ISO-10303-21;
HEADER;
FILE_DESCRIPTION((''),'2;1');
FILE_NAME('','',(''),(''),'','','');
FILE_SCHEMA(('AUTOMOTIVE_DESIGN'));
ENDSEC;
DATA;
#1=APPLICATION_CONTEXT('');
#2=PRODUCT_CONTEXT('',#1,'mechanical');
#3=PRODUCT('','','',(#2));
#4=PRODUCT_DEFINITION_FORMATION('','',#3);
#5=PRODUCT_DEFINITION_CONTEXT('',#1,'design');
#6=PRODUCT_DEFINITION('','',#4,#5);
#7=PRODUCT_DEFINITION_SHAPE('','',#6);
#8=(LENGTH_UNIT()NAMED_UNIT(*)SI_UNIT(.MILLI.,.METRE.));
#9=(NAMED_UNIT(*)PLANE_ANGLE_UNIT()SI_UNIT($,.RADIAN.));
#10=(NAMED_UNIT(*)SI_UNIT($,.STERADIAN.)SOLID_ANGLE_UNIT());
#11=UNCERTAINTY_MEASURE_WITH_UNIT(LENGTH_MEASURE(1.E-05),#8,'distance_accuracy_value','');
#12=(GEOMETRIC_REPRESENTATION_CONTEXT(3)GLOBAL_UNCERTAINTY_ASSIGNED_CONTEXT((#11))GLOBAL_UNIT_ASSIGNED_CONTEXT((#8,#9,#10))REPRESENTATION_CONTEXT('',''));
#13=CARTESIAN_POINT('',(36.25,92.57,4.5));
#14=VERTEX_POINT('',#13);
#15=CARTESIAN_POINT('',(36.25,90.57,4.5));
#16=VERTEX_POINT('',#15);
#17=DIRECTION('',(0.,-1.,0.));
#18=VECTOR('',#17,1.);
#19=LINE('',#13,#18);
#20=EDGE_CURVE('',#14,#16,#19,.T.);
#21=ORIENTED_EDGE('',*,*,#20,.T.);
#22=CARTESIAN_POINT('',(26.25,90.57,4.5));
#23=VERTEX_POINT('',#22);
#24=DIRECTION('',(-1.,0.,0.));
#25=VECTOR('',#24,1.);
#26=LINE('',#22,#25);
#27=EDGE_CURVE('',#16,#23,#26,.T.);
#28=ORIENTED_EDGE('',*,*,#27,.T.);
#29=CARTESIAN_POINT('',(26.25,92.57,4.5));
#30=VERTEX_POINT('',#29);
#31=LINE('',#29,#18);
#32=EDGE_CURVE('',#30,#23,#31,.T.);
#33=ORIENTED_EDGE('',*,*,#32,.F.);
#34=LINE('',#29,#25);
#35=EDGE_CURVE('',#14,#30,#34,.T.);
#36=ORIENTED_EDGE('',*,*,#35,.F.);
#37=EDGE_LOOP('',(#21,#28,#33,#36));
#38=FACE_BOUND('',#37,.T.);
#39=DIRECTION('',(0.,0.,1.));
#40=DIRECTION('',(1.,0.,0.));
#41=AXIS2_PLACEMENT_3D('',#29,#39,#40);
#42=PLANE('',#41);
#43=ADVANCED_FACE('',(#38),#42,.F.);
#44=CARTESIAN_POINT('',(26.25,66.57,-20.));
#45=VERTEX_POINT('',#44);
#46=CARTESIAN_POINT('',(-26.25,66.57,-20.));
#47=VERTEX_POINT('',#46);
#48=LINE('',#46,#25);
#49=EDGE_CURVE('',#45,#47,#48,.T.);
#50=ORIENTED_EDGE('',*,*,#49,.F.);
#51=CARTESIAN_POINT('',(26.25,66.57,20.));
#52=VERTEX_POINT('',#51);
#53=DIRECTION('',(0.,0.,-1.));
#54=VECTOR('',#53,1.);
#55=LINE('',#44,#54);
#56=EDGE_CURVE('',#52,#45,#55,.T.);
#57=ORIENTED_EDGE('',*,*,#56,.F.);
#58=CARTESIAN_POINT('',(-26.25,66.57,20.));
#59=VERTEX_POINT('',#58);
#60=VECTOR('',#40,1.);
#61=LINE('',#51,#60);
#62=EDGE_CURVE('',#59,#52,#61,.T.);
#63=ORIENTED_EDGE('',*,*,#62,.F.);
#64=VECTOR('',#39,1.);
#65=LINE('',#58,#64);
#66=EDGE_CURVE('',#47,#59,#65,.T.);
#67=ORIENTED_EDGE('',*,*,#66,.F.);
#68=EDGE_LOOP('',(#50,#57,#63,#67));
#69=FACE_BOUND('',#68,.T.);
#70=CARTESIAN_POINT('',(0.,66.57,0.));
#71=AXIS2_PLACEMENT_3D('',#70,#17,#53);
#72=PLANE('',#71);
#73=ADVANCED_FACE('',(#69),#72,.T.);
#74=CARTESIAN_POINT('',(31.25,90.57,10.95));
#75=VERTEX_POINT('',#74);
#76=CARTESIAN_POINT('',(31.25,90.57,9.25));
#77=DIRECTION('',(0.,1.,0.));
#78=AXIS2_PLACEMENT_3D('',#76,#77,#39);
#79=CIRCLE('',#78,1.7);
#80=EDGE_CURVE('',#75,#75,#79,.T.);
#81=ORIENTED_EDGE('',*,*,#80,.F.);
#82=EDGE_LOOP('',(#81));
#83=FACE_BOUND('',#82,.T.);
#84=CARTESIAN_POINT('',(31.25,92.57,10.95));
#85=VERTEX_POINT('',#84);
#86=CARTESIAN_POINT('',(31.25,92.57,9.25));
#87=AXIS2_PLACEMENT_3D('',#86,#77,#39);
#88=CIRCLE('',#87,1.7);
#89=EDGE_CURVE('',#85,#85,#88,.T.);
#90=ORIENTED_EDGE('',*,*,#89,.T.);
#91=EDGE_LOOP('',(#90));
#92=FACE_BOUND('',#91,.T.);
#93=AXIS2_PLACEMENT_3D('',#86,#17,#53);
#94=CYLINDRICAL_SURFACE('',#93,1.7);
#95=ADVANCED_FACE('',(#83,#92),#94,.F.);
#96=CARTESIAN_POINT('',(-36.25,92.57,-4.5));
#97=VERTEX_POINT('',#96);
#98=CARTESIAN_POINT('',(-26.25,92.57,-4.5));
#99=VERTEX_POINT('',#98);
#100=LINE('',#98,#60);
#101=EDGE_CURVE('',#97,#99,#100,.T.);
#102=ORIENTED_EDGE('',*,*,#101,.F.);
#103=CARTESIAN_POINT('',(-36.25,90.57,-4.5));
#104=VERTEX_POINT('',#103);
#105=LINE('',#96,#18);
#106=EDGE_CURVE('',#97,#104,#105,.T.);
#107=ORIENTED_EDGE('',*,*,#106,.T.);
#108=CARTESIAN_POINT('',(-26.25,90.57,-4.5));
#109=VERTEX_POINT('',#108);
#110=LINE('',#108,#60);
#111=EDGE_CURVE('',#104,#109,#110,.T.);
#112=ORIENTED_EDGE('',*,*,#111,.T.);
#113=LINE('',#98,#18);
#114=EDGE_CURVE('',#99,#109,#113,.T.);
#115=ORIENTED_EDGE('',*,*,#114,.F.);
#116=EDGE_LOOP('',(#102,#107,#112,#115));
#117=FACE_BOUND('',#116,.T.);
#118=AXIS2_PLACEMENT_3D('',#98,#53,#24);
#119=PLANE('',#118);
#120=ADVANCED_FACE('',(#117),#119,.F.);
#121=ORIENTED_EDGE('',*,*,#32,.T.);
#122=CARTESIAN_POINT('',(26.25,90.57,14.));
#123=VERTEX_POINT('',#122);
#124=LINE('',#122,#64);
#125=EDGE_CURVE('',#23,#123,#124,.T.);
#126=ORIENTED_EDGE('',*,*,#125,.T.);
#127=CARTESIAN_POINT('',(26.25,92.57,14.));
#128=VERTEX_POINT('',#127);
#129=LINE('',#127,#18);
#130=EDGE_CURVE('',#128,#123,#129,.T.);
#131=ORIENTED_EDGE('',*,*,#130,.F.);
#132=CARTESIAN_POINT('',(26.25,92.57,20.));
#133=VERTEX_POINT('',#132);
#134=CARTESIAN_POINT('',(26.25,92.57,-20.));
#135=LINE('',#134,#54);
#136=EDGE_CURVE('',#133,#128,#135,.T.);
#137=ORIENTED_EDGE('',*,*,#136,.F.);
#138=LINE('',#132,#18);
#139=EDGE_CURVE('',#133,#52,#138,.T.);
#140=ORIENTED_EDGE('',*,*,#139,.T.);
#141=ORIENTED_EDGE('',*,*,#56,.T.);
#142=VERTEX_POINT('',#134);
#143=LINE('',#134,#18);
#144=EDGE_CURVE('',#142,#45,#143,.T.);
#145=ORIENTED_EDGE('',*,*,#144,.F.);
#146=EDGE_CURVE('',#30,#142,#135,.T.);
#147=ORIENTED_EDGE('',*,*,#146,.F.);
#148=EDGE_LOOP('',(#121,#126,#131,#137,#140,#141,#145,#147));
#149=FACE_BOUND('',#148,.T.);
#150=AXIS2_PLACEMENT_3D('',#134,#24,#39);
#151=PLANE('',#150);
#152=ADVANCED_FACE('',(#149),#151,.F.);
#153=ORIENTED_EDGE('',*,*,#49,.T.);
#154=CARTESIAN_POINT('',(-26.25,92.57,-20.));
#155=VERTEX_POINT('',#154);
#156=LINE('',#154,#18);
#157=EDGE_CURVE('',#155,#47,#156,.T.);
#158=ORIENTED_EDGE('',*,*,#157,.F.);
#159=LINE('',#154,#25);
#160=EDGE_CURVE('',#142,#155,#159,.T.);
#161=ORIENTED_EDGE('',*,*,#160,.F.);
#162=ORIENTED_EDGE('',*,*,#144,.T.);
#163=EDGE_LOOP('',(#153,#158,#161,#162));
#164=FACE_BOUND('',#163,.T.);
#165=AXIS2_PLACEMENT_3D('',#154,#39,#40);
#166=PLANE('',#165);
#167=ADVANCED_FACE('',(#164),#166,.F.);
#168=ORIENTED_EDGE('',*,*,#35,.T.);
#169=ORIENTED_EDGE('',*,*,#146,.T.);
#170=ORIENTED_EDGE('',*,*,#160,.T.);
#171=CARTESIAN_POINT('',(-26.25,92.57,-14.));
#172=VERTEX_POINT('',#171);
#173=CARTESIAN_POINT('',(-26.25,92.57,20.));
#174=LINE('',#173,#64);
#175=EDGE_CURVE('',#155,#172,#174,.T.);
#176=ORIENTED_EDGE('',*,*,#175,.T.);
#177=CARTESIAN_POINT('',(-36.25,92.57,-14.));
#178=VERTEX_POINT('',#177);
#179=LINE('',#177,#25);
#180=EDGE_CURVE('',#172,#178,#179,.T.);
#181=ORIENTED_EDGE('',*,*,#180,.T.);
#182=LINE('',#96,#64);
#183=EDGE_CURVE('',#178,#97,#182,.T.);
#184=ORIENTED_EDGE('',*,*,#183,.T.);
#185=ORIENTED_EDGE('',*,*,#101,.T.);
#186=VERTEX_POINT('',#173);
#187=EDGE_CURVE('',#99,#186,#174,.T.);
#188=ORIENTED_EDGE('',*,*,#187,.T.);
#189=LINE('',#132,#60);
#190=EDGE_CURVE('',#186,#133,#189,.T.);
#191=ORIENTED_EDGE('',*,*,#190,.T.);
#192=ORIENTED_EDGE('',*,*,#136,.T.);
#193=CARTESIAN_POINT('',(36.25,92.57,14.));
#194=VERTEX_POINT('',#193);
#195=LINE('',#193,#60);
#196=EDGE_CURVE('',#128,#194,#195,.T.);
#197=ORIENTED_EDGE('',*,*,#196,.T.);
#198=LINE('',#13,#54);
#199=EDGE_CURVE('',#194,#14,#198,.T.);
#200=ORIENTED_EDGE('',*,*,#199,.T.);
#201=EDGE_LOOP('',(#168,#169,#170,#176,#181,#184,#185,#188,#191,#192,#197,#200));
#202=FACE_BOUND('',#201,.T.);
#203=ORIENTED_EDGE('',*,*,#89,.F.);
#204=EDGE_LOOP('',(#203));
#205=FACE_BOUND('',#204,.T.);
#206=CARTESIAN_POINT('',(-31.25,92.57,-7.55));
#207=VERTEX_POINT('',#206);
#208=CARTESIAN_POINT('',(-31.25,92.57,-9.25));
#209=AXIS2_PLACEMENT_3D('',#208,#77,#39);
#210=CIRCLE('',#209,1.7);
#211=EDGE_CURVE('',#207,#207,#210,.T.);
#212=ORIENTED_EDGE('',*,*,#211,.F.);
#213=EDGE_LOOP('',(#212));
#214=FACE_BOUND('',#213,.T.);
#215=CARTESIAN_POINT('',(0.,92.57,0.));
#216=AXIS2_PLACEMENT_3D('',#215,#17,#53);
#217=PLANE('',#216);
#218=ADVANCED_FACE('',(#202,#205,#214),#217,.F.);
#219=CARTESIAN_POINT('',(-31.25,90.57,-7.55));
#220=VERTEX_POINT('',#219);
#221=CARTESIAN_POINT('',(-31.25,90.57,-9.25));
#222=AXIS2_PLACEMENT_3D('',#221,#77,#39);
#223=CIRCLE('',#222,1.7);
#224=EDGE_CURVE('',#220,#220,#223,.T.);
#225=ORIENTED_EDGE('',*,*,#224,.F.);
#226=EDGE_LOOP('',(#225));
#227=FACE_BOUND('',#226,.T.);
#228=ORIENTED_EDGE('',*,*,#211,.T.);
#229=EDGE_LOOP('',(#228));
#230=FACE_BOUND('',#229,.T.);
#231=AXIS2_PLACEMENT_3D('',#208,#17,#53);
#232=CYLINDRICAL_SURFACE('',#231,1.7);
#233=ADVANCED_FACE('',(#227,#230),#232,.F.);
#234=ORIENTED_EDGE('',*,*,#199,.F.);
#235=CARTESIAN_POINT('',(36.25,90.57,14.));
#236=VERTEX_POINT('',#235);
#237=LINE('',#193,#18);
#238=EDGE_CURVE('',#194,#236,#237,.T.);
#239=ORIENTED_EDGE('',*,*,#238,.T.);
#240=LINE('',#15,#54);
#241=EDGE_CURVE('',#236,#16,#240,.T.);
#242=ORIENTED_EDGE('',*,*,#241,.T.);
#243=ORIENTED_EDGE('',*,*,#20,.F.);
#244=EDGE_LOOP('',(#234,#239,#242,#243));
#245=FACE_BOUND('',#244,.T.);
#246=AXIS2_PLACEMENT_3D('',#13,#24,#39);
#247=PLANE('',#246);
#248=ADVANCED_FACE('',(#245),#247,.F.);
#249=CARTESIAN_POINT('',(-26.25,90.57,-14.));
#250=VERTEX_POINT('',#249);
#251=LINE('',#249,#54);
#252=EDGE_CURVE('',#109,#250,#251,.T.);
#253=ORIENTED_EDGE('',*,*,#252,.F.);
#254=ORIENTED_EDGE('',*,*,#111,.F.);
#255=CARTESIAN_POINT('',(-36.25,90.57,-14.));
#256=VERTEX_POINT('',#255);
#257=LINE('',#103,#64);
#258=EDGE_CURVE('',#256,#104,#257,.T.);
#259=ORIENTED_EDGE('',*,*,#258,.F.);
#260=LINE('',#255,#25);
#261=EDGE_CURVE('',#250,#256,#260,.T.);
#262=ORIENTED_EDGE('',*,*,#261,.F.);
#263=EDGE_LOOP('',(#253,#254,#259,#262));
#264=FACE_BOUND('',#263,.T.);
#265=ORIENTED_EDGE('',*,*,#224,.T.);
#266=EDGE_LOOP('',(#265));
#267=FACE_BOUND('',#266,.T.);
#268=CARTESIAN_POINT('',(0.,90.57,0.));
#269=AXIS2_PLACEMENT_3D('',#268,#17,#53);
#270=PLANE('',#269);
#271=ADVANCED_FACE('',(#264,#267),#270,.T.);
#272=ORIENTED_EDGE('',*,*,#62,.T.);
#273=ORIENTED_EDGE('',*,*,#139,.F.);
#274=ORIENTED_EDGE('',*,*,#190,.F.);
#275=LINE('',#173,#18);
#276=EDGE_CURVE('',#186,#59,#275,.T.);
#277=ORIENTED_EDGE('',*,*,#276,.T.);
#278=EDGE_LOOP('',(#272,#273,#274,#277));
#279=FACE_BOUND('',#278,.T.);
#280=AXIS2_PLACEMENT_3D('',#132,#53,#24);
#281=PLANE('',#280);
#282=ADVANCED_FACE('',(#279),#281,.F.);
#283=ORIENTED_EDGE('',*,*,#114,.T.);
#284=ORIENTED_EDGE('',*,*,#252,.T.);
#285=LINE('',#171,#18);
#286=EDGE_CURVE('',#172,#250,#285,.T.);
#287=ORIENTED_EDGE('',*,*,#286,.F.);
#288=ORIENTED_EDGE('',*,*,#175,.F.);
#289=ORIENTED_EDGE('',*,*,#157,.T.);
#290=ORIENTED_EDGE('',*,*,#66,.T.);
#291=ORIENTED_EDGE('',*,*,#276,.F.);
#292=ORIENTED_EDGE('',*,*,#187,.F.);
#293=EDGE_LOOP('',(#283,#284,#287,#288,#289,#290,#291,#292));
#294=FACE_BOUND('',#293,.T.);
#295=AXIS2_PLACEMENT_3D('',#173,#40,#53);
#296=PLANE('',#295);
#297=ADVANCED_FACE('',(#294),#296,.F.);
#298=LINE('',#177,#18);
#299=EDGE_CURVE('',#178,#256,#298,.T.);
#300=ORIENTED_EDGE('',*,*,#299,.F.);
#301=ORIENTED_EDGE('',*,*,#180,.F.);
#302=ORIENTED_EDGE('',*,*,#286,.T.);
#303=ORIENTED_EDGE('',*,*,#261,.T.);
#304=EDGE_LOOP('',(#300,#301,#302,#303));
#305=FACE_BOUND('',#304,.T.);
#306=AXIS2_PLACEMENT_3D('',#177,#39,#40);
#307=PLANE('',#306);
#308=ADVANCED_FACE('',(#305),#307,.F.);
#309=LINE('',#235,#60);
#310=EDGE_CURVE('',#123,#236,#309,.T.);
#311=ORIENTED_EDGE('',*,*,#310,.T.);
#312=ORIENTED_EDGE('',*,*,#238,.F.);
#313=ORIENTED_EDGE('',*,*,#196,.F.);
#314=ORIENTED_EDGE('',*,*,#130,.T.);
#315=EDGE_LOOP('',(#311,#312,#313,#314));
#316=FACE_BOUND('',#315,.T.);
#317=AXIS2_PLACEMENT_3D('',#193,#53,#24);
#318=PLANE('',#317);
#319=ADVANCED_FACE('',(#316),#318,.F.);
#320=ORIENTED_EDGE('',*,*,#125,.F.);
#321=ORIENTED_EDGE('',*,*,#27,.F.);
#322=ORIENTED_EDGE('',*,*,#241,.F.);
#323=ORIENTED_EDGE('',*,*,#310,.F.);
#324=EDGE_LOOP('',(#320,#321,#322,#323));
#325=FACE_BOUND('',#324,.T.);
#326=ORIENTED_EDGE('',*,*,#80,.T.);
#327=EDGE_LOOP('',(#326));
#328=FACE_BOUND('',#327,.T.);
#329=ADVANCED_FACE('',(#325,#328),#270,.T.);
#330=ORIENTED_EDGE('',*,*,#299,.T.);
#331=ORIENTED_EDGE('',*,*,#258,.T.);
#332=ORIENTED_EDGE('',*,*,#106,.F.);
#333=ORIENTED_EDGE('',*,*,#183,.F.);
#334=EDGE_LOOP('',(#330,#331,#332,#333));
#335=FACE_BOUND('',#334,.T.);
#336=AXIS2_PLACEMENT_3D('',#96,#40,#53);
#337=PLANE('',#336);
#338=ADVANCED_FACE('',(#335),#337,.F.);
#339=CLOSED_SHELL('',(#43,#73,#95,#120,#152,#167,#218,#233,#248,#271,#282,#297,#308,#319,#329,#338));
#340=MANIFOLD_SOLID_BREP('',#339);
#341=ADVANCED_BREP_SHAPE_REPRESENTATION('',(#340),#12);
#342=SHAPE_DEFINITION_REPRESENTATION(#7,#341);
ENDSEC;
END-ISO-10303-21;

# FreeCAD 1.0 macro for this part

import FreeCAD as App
import Part
import Sketcher

V = App.Vector
Q = App.Units.Quantity


def add_polygon(sketch, points):
    """Adds a closed chain of lines whose ends are joined by coincident constraints."""
    first, n = sketch.GeometryCount, len(points)
    for a, b in zip(points, points[1:] + points[:1]):
        sketch.addGeometry(Part.LineSegment(App.Vector(*a, 0), App.Vector(*b, 0)), False)
    for i in range(n):
        sketch.addConstraint(Sketcher.Constraint("Coincident", first + i, 2, first + (i + 1) % n, 1))

doc = App.newDocument("Part")
params = doc.addObject("Spreadsheet::Sheet", "Params")
for row, (alias, value) in enumerate([
    ("sketch1_height", "40 mm"),
    ("sketch1_width", "52.5 mm"),
    ("pad1_length", "26 mm"),
    ("sketch2_diameter", "3.4 mm"),
    ("sketch2_width", "10 mm"),
    ("sketch2_height", "9.5 mm"),
    ("pad2_length", "2 mm"),
], start=1):
    params.set(f"A{row}", alias)
    params.set(f"B{row}", "=" + value)
    params.setAlias(f"B{row}", alias)

body = doc.addObject("PartDesign::Body", "Body")

sketch1 = body.newObject("Sketcher::SketchObject", "Sketch")
sketch1.AttachmentSupport = (doc.getObject("XZ_Plane"), [""])
sketch1.MapMode = "FlatFace"
sketch1.AttachmentOffset = App.Placement(V(0, 0, -66.57), App.Rotation())
add_polygon(sketch1, [(-26, -20), (-26, 20), (26, 20), (26, -20)])
sketch1.addConstraint([
    Sketcher.Constraint("Vertical", 0),
    Sketcher.Constraint("Horizontal", 1),
    Sketcher.Constraint("Vertical", 2),
    Sketcher.Constraint("Horizontal", 3),
    Sketcher.Constraint("Symmetric", 0, 2, 2, 2, -1, 1),
    Sketcher.Constraint("DistanceY", 0, 1, 0, 2, Q("40 mm")),
    Sketcher.Constraint("DistanceX", 1, 1, 1, 2, Q("52.5 mm")),
])
sketch1.setExpression("Constraints[9]", "Params.sketch1_height")
sketch1.setExpression("Constraints[10]", "Params.sketch1_width")
pad1 = body.newObject("PartDesign::Pad", "Pad")
pad1.Profile = sketch1
pad1.setExpression("Length", "Params.pad1_length")
pad1.Reversed = True

sketch2 = body.newObject("Sketcher::SketchObject", "Sketch001")
sketch2.AttachmentSupport = (doc.getObject("XZ_Plane"), [""])
sketch2.MapMode = "FlatFace"
sketch2.AttachmentOffset = App.Placement(V(0, 0, -90.57), App.Rotation())
add_polygon(sketch2, [(26.2, 4.5), (26.2, 14), (36.2, 14), (36.2, 4.5)])
sketch2.addGeometry(Part.Circle(V(31.2, 9.2, 0), V(0, 0, 1), 1.7), False)
add_polygon(sketch2, [(-36.2, -14), (-36.2, -4.5), (-26.2, -4.5), (-26.2, -14)])
sketch2.addGeometry(Part.Circle(V(-31.2, -9.2, 0), V(0, 0, 1), 1.7), False)
sketch2.addConstraint([
    Sketcher.Constraint("Vertical", 0),
    Sketcher.Constraint("Horizontal", 1),
    Sketcher.Constraint("Vertical", 2),
    Sketcher.Constraint("Horizontal", 3),
    Sketcher.Constraint("Vertical", 5),
    Sketcher.Constraint("Horizontal", 6),
    Sketcher.Constraint("Vertical", 7),
    Sketcher.Constraint("Horizontal", 8),
    Sketcher.Constraint("Equal", 4, 9),
    Sketcher.Constraint("Symmetric", 4, 3, 9, 3, -1, 1),
    Sketcher.Constraint("Symmetric", 2, 2, 5, 2, -1, 1),
    Sketcher.Constraint("Symmetric", 0, 2, 7, 2, -1, 1),
    Sketcher.Constraint("Diameter", 4, Q("3.4 mm")),
    Sketcher.Constraint("DistanceX", 1, 1, 1, 2, Q("10 mm")),
    Sketcher.Constraint("DistanceY", 0, 1, 0, 2, Q("9.5 mm")),
    Sketcher.Constraint("DistanceY", -1, 1, 0, 2, Q("14 mm")),
    Sketcher.Constraint("DistanceX", 0, 2, 4, 3, Q("5 mm")),
    Sketcher.Constraint("DistanceX", 9, 3, 4, 3, Q("62.5 mm")),
    Sketcher.Constraint("DistanceY", 9, 3, 4, 3, Q("18.5 mm")),
])
sketch2.setExpression("Constraints[20]", "Params.sketch2_diameter")
sketch2.setExpression("Constraints[21]", "Params.sketch2_width")
sketch2.setExpression("Constraints[22]", "Params.sketch2_height")
pad2 = body.newObject("PartDesign::Pad", "Pad001")
pad2.Profile = sketch2
pad2.setExpression("Length", "Params.pad2_length")
pad2.Reversed = True

doc.recompute()
